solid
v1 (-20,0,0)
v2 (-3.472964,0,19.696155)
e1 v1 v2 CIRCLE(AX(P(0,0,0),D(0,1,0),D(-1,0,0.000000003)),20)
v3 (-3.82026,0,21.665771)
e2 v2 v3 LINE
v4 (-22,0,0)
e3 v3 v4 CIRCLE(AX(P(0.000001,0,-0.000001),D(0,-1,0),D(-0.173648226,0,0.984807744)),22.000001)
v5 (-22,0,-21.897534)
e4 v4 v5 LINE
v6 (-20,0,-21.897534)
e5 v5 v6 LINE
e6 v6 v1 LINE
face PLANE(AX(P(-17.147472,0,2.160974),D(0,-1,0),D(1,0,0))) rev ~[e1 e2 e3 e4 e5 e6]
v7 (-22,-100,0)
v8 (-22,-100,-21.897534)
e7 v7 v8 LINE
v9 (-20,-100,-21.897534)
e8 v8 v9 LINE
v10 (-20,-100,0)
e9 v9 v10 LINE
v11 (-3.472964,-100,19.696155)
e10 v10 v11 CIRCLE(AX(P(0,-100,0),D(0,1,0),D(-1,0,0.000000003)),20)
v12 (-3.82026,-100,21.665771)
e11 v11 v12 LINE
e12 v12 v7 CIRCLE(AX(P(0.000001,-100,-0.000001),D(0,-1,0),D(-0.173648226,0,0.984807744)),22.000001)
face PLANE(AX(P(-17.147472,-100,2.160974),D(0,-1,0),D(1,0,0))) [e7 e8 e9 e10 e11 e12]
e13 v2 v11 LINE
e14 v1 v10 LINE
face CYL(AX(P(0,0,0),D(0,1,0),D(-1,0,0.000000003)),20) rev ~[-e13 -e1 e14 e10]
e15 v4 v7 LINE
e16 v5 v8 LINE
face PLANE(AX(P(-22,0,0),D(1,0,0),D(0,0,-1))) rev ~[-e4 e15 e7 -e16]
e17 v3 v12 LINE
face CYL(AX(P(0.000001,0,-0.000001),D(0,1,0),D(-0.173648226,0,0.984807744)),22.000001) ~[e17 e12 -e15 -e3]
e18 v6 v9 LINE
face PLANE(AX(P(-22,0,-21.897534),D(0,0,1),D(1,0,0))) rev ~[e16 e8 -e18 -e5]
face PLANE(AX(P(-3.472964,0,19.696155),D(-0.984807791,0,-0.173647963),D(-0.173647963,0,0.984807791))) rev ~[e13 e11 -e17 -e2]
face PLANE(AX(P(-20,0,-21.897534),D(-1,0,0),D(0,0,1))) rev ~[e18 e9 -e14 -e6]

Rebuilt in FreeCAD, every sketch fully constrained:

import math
import FreeCAD as App
import Part
import Sketcher
from FreeCAD import Vector
Q = App.Units.Quantity

doc = App.newDocument("Part")
params = doc.addObject("Spreadsheet::Sheet", "Params")
for row, (alias, value) in enumerate([
    ("sketch1_radius", "20 mm"),
    ("sketch1_radius2", "22.000001 mm"),
    ("pad1_length", "100 mm"),
], start=1):
    params.set(f"A{row}", alias)
    params.set(f"B{row}", "=" + value)
    params.setAlias(f"B{row}", alias)

body = doc.addObject("PartDesign::Body", "Body")

# Sketch on XZ plane
sketch1 = body.newObject("Sketcher::SketchObject", "Sketch")
sketch1.AttachmentSupport = (doc.getObject("XZ_Plane"), [""])
sketch1.MapMode = "FlatFace"
sketch1.addGeometry([
    Part.ArcOfCircle(Part.Circle(Vector(0, 0, 0), Vector(0, 0, 1), 20), math.radians(100), math.radians(180)),  # 0
    Part.LineSegment(Vector(-3.5, 19.7, 0), Vector(-3.8, 21.7, 0)),  # 1
    Part.ArcOfCircle(Part.Circle(Vector(0, 0, 0), Vector(0, 0, 1), 22), math.radians(100), math.radians(180)),  # 2
    Part.LineSegment(Vector(-22, 0, 0), Vector(-22, -21.9, 0)),  # 3
    Part.LineSegment(Vector(-22, -21.9, 0), Vector(-20, -21.9, 0)),  # 4
    Part.LineSegment(Vector(-20, -21.9, 0), Vector(-20, 0, 0)),  # 5
], False)
sketch1.addConstraint([
    Sketcher.Constraint("Coincident", 0, 1, 1, 1),
    Sketcher.Constraint("Coincident", 1, 2, 2, 1),
    Sketcher.Constraint("Tangent", 2, 2, 3, 1),
    Sketcher.Constraint("Coincident", 3, 2, 4, 1),
    Sketcher.Constraint("Coincident", 4, 2, 5, 1),
    Sketcher.Constraint("Tangent", 5, 2, 0, 2),
    Sketcher.Constraint("Vertical", 3),
    Sketcher.Constraint("Horizontal", 4),
    Sketcher.Constraint("Vertical", 5),
    Sketcher.Constraint("Coincident", 0, 3, -1, 1),
    Sketcher.Constraint("Coincident", 2, 3, -1, 1),
    Sketcher.Constraint("Radius", 0, 20.0),
    Sketcher.Constraint("Radius", 2, 22.000001),
    Sketcher.Constraint("Angle", 1, Q("99.999988 deg")),
    Sketcher.Constraint("DistanceY", 3, 2, 3, 1, 21.897534),
    Sketcher.Constraint("DistanceX", 1, 2, -1, 1, 3.82026),
])
sketch1.setExpression("Constraints[11]", "Params.sketch1_radius")
sketch1.setExpression("Constraints[12]", "Params.sketch1_radius2")
pad1 = body.newObject("PartDesign::Pad", "Pad")
pad1.Profile = sketch1
pad1.setExpression("Length", "Params.pad1_length")

doc.recompute()
